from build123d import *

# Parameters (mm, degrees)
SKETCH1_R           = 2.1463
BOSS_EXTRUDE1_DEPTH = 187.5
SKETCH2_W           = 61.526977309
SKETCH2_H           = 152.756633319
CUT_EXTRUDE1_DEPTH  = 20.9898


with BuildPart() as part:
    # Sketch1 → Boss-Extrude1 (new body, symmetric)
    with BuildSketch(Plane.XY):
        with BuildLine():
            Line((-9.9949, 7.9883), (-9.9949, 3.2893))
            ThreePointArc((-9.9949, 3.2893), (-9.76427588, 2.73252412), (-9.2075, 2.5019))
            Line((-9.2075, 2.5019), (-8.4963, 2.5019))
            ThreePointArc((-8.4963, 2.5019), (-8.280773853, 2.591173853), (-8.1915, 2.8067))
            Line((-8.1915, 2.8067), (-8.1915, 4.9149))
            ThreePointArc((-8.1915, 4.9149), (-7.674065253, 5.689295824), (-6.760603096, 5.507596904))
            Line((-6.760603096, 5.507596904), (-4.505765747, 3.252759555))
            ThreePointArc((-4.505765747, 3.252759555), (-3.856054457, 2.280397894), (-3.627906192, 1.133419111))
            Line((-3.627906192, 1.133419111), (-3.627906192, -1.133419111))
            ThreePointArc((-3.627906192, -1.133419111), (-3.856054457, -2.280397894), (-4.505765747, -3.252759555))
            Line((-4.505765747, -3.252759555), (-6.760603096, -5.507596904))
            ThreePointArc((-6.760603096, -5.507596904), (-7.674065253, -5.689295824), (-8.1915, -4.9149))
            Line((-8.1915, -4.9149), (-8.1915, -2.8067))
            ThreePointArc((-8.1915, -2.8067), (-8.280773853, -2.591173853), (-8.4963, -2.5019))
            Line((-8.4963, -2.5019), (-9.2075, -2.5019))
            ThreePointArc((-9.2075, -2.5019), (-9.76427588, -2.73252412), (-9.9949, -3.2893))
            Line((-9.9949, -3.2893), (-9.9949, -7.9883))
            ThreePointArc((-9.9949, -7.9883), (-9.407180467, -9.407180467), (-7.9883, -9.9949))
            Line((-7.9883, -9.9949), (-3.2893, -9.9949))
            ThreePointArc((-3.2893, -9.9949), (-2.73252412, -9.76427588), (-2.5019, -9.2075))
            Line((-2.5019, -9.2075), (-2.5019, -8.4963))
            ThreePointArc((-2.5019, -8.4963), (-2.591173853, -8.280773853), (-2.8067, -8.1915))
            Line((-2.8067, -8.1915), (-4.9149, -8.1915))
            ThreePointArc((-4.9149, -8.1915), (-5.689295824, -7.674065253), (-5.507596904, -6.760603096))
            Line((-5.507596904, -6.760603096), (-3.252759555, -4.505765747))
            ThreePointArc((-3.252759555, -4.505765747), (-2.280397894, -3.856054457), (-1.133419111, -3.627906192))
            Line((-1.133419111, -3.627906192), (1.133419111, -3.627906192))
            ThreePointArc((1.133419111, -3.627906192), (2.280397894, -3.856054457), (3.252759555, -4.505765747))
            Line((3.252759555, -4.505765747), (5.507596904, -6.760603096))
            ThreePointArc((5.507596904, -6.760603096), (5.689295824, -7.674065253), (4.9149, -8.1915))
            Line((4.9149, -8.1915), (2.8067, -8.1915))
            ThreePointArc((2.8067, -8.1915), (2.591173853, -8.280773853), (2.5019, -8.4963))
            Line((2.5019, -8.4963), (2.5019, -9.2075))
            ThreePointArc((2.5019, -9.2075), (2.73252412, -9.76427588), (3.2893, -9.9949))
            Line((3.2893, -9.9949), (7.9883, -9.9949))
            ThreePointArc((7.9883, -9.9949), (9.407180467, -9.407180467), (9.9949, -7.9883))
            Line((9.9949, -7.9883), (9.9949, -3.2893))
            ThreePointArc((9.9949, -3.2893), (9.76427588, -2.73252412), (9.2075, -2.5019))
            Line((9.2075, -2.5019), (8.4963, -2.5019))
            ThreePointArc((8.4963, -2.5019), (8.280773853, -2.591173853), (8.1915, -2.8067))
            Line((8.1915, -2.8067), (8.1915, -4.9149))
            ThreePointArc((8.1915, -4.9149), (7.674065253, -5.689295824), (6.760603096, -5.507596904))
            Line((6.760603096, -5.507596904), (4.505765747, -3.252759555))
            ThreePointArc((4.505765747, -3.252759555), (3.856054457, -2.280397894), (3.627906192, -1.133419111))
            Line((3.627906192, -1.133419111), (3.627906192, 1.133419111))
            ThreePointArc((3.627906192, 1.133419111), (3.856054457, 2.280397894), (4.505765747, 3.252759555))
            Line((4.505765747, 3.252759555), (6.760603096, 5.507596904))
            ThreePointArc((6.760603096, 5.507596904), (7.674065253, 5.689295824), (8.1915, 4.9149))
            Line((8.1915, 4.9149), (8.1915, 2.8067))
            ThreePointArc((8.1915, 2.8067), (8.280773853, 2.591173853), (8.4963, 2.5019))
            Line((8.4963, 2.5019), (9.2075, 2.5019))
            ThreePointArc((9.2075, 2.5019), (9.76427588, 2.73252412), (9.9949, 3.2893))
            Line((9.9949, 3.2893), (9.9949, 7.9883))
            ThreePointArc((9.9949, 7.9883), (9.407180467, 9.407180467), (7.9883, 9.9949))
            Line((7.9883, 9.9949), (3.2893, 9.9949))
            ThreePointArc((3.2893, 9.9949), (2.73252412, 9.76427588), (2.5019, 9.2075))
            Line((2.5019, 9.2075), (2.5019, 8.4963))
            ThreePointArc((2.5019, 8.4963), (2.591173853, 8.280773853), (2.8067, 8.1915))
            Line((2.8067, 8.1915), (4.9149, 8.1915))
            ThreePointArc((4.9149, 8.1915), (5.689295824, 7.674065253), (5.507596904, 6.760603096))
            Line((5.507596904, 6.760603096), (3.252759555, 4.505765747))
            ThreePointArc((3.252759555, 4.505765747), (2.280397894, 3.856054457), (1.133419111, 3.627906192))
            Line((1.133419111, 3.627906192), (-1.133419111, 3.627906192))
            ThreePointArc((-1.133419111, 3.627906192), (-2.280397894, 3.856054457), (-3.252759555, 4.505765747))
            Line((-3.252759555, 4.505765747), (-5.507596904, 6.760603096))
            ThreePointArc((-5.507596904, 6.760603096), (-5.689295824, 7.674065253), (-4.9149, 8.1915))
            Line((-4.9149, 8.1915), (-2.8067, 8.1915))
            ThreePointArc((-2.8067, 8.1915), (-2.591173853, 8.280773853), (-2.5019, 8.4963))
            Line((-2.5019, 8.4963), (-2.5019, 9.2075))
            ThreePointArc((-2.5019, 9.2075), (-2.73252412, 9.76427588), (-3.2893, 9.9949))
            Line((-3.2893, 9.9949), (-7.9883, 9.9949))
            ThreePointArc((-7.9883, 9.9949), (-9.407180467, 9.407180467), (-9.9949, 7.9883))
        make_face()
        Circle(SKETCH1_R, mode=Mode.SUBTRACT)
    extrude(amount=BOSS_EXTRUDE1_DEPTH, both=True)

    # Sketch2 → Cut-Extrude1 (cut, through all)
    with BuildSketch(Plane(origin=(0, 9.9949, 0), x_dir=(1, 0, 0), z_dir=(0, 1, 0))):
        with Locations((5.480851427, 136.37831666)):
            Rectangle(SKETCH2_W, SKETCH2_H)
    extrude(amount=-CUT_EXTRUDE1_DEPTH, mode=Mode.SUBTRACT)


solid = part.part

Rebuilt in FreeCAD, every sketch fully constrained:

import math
import FreeCAD as App
import Part
import Sketcher
Q = App.Units.Quantity


def add_polygon(sketch, points):
    """Adds a closed chain of lines whose ends are joined by coincident constraints."""
    first, n = sketch.GeometryCount, len(points)
    for a, b in zip(points, points[1:] + points[:1]):
        sketch.addGeometry(Part.LineSegment(App.Vector(*a, 0), App.Vector(*b, 0)), False)
    for i in range(n):
        sketch.addConstraint(Sketcher.Constraint("Coincident", first + i, 2, first + (i + 1) % n, 1))

doc = App.newDocument("Part")
body = doc.addObject("PartDesign::Body", "Body")

# Sketch on XY plane
sketch1 = body.newObject("Sketcher::SketchObject", "Sketch")
sketch1.AttachmentSupport = (doc.getObject("XY_Plane"), [""])
sketch1.MapMode = "FlatFace"
sketch1.addGeometry([
    Part.LineSegment(App.Vector(-9.99, 7.99, 0), App.Vector(-9.99, 3.29, 0)),  # 0
    Part.ArcOfCircle(Part.Circle(App.Vector(-9.21, 3.29, 0), App.Vector(0, 0, 1), 0.79), math.radians(180), math.radians(270)),  # 1
    Part.LineSegment(App.Vector(-9.21, 2.5, 0), App.Vector(-8.5, 2.5, 0)),  # 2
    Part.ArcOfCircle(Part.Circle(App.Vector(-8.5, 2.81, 0), App.Vector(0, 0, 1), 0.3), math.radians(-90), math.radians(0)),  # 3
    Part.LineSegment(App.Vector(-8.19, 2.81, 0), App.Vector(-8.19, 4.91, 0)),  # 4
    Part.ArcOfCircle(Part.Circle(App.Vector(-7.35, 4.91, 0), App.Vector(0, 0, 1), 0.84), math.radians(45), math.radians(180)),  # 5
    Part.LineSegment(App.Vector(-6.76, 5.51, 0), App.Vector(-4.51, 3.25, 0)),  # 6
    Part.ArcOfCircle(Part.Circle(App.Vector(-6.63, 1.13, 0), App.Vector(0, 0, 1), 3), math.radians(0), math.radians(45)),  # 7
    Part.LineSegment(App.Vector(-3.63, 1.13, 0), App.Vector(-3.63, -1.13, 0)),  # 8
    Part.ArcOfCircle(Part.Circle(App.Vector(-6.63, -1.13, 0), App.Vector(0, 0, 1), 3), math.radians(-45), math.radians(0)),  # 9
    Part.LineSegment(App.Vector(-4.51, -3.25, 0), App.Vector(-6.76, -5.51, 0)),  # 10
    Part.ArcOfCircle(Part.Circle(App.Vector(-7.35, -4.91, 0), App.Vector(0, 0, 1), 0.84), math.radians(180), math.radians(315)),  # 11
    Part.LineSegment(App.Vector(-8.19, -4.91, 0), App.Vector(-8.19, -2.81, 0)),  # 12
    Part.ArcOfCircle(Part.Circle(App.Vector(-8.5, -2.81, 0), App.Vector(0, 0, 1), 0.3), math.radians(0), math.radians(90)),  # 13
    Part.LineSegment(App.Vector(-8.5, -2.5, 0), App.Vector(-9.21, -2.5, 0)),  # 14
    Part.ArcOfCircle(Part.Circle(App.Vector(-9.21, -3.29, 0), App.Vector(0, 0, 1), 0.79), math.radians(90), math.radians(180)),  # 15
    Part.LineSegment(App.Vector(-9.99, -3.29, 0), App.Vector(-9.99, -7.99, 0)),  # 16
    Part.ArcOfCircle(Part.Circle(App.Vector(-7.99, -7.99, 0), App.Vector(0, 0, 1), 2.01), math.radians(180), math.radians(270)),  # 17
    Part.LineSegment(App.Vector(-7.99, -9.99, 0), App.Vector(-3.29, -9.99, 0)),  # 18
    Part.ArcOfCircle(Part.Circle(App.Vector(-3.29, -9.21, 0), App.Vector(0, 0, 1), 0.79), math.radians(-90), math.radians(0)),  # 19
    Part.LineSegment(App.Vector(-2.5, -9.21, 0), App.Vector(-2.5, -8.5, 0)),  # 20
    Part.ArcOfCircle(Part.Circle(App.Vector(-2.81, -8.5, 0), App.Vector(0, 0, 1), 0.3), math.radians(0), math.radians(90)),  # 21
    Part.LineSegment(App.Vector(-2.81, -8.19, 0), App.Vector(-4.91, -8.19, 0)),  # 22
    Part.ArcOfCircle(Part.Circle(App.Vector(-4.91, -7.35, 0), App.Vector(0, 0, 1), 0.84), math.radians(135), math.radians(270)),  # 23
    Part.LineSegment(App.Vector(-5.51, -6.76, 0), App.Vector(-3.25, -4.51, 0)),  # 24
    Part.ArcOfCircle(Part.Circle(App.Vector(-1.13, -6.63, 0), App.Vector(0, 0, 1), 3), math.radians(90), math.radians(135)),  # 25
    Part.LineSegment(App.Vector(-1.13, -3.63, 0), App.Vector(1.13, -3.63, 0)),  # 26
    Part.ArcOfCircle(Part.Circle(App.Vector(1.13, -6.63, 0), App.Vector(0, 0, 1), 3), math.radians(45), math.radians(90)),  # 27
    Part.LineSegment(App.Vector(3.25, -4.51, 0), App.Vector(5.51, -6.76, 0)),  # 28
    Part.ArcOfCircle(Part.Circle(App.Vector(4.91, -7.35, 0), App.Vector(0, 0, 1), 0.84), math.radians(-90), math.radians(45)),  # 29
    Part.LineSegment(App.Vector(4.91, -8.19, 0), App.Vector(2.81, -8.19, 0)),  # 30
    Part.ArcOfCircle(Part.Circle(App.Vector(2.81, -8.5, 0), App.Vector(0, 0, 1), 0.3), math.radians(90), math.radians(180)),  # 31
    Part.LineSegment(App.Vector(2.5, -8.5, 0), App.Vector(2.5, -9.21, 0)),  # 32
    Part.ArcOfCircle(Part.Circle(App.Vector(3.29, -9.21, 0), App.Vector(0, 0, 1), 0.79), math.radians(180), math.radians(270)),  # 33
    Part.LineSegment(App.Vector(3.29, -9.99, 0), App.Vector(7.99, -9.99, 0)),  # 34
    Part.ArcOfCircle(Part.Circle(App.Vector(7.99, -7.99, 0), App.Vector(0, 0, 1), 2.01), math.radians(-90), math.radians(0)),  # 35
    Part.LineSegment(App.Vector(9.99, -7.99, 0), App.Vector(9.99, -3.29, 0)),  # 36
    Part.ArcOfCircle(Part.Circle(App.Vector(9.21, -3.29, 0), App.Vector(0, 0, 1), 0.79), math.radians(0), math.radians(90)),  # 37
    Part.LineSegment(App.Vector(9.21, -2.5, 0), App.Vector(8.5, -2.5, 0)),  # 38
    Part.ArcOfCircle(Part.Circle(App.Vector(8.5, -2.81, 0), App.Vector(0, 0, 1), 0.3), math.radians(90), math.radians(180)),  # 39
    Part.LineSegment(App.Vector(8.19, -2.81, 0), App.Vector(8.19, -4.91, 0)),  # 40
    Part.ArcOfCircle(Part.Circle(App.Vector(7.35, -4.91, 0), App.Vector(0, 0, 1), 0.84), math.radians(-135), math.radians(0)),  # 41
    Part.LineSegment(App.Vector(6.76, -5.51, 0), App.Vector(4.51, -3.25, 0)),  # 42
    Part.ArcOfCircle(Part.Circle(App.Vector(6.63, -1.13, 0), App.Vector(0, 0, 1), 3), math.radians(180), math.radians(225)),  # 43
    Part.LineSegment(App.Vector(3.63, -1.13, 0), App.Vector(3.63, 1.13, 0)),  # 44
    Part.ArcOfCircle(Part.Circle(App.Vector(6.63, 1.13, 0), App.Vector(0, 0, 1), 3), math.radians(135), math.radians(180)),  # 45
    Part.LineSegment(App.Vector(4.51, 3.25, 0), App.Vector(6.76, 5.51, 0)),  # 46
    Part.ArcOfCircle(Part.Circle(App.Vector(7.35, 4.91, 0), App.Vector(0, 0, 1), 0.84), math.radians(0), math.radians(135)),  # 47
    Part.LineSegment(App.Vector(8.19, 4.91, 0), App.Vector(8.19, 2.81, 0)),  # 48
    Part.ArcOfCircle(Part.Circle(App.Vector(8.5, 2.81, 0), App.Vector(0, 0, 1), 0.3), math.radians(180), math.radians(270)),  # 49
    Part.LineSegment(App.Vector(8.5, 2.5, 0), App.Vector(9.21, 2.5, 0)),  # 50
    Part.ArcOfCircle(Part.Circle(App.Vector(9.21, 3.29, 0), App.Vector(0, 0, 1), 0.79), math.radians(-90), math.radians(0)),  # 51
    Part.LineSegment(App.Vector(9.99, 3.29, 0), App.Vector(9.99, 7.99, 0)),  # 52
    Part.ArcOfCircle(Part.Circle(App.Vector(7.99, 7.99, 0), App.Vector(0, 0, 1), 2.01), math.radians(0), math.radians(90)),  # 53
    Part.LineSegment(App.Vector(7.99, 9.99, 0), App.Vector(3.29, 9.99, 0)),  # 54
    Part.ArcOfCircle(Part.Circle(App.Vector(3.29, 9.21, 0), App.Vector(0, 0, 1), 0.79), math.radians(90), math.radians(180)),  # 55
    Part.LineSegment(App.Vector(2.5, 9.21, 0), App.Vector(2.5, 8.5, 0)),  # 56
    Part.ArcOfCircle(Part.Circle(App.Vector(2.81, 8.5, 0), App.Vector(0, 0, 1), 0.3), math.radians(180), math.radians(270)),  # 57
    Part.LineSegment(App.Vector(2.81, 8.19, 0), App.Vector(4.91, 8.19, 0)),  # 58
    Part.ArcOfCircle(Part.Circle(App.Vector(4.91, 7.35, 0), App.Vector(0, 0, 1), 0.84), math.radians(-45), math.radians(90)),  # 59
    Part.LineSegment(App.Vector(5.51, 6.76, 0), App.Vector(3.25, 4.51, 0)),  # 60
    Part.ArcOfCircle(Part.Circle(App.Vector(1.13, 6.63, 0), App.Vector(0, 0, 1), 3), math.radians(-90), math.radians(-45)),  # 61
    Part.LineSegment(App.Vector(1.13, 3.63, 0), App.Vector(-1.13, 3.63, 0)),  # 62
    Part.ArcOfCircle(Part.Circle(App.Vector(-1.13, 6.63, 0), App.Vector(0, 0, 1), 3), math.radians(-135), math.radians(-90)),  # 63
    Part.LineSegment(App.Vector(-3.25, 4.51, 0), App.Vector(-5.51, 6.76, 0)),  # 64
    Part.ArcOfCircle(Part.Circle(App.Vector(-4.91, 7.35, 0), App.Vector(0, 0, 1), 0.84), math.radians(90), math.radians(225)),  # 65
    Part.LineSegment(App.Vector(-4.91, 8.19, 0), App.Vector(-2.81, 8.19, 0)),  # 66
    Part.ArcOfCircle(Part.Circle(App.Vector(-2.81, 8.5, 0), App.Vector(0, 0, 1), 0.3), math.radians(-90), math.radians(0)),  # 67
    Part.LineSegment(App.Vector(-2.5, 8.5, 0), App.Vector(-2.5, 9.21, 0)),  # 68
    Part.ArcOfCircle(Part.Circle(App.Vector(-3.29, 9.21, 0), App.Vector(0, 0, 1), 0.79), math.radians(0), math.radians(90)),  # 69
    Part.LineSegment(App.Vector(-3.29, 9.99, 0), App.Vector(-7.99, 9.99, 0)),  # 70
    Part.ArcOfCircle(Part.Circle(App.Vector(-7.99, 7.99, 0), App.Vector(0, 0, 1), 2.01), math.radians(90), math.radians(180)),  # 71
    Part.Circle(App.Vector(0, 0, 0), App.Vector(0, 0, 1), 2.15),  # 72
], False)
sketch1.addConstraint([
    Sketcher.Constraint("Tangent", 0, 2, 1, 1),
    Sketcher.Constraint("Tangent", 1, 2, 2, 1),
    Sketcher.Constraint("Tangent", 2, 2, 3, 1),
    Sketcher.Constraint("Tangent", 3, 2, 4, 1),
    Sketcher.Constraint("Tangent", 4, 2, 5, 2),
    Sketcher.Constraint("Tangent", 5, 1, 6, 1),
    Sketcher.Constraint("Tangent", 6, 2, 7, 2),
    Sketcher.Constraint("Tangent", 7, 1, 8, 1),
    Sketcher.Constraint("Tangent", 8, 2, 9, 2),
    Sketcher.Constraint("Tangent", 9, 1, 10, 1),
    Sketcher.Constraint("Tangent", 10, 2, 11, 2),
    Sketcher.Constraint("Tangent", 11, 1, 12, 1),
    Sketcher.Constraint("Tangent", 12, 2, 13, 1),
    Sketcher.Constraint("Tangent", 13, 2, 14, 1),
    Sketcher.Constraint("Tangent", 14, 2, 15, 1),
    Sketcher.Constraint("Tangent", 15, 2, 16, 1),
    Sketcher.Constraint("Tangent", 16, 2, 17, 1),
    Sketcher.Constraint("Tangent", 17, 2, 18, 1),
    Sketcher.Constraint("Tangent", 18, 2, 19, 1),
    Sketcher.Constraint("Tangent", 19, 2, 20, 1),
    Sketcher.Constraint("Tangent", 20, 2, 21, 1),
    Sketcher.Constraint("Tangent", 21, 2, 22, 1),
    Sketcher.Constraint("Tangent", 22, 2, 23, 2),
    Sketcher.Constraint("Tangent", 23, 1, 24, 1),
    Sketcher.Constraint("Tangent", 24, 2, 25, 2),
    Sketcher.Constraint("Tangent", 25, 1, 26, 1),
    Sketcher.Constraint("Tangent", 26, 2, 27, 2),
    Sketcher.Constraint("Tangent", 27, 1, 28, 1),
    Sketcher.Constraint("Tangent", 28, 2, 29, 2),
    Sketcher.Constraint("Tangent", 29, 1, 30, 1),
    Sketcher.Constraint("Tangent", 30, 2, 31, 1),
    Sketcher.Constraint("Tangent", 31, 2, 32, 1),
    Sketcher.Constraint("Tangent", 32, 2, 33, 1),
    Sketcher.Constraint("Tangent", 33, 2, 34, 1),
    Sketcher.Constraint("Tangent", 34, 2, 35, 1),
    Sketcher.Constraint("Tangent", 35, 2, 36, 1),
    Sketcher.Constraint("Tangent", 36, 2, 37, 1),
    Sketcher.Constraint("Tangent", 37, 2, 38, 1),
    Sketcher.Constraint("Tangent", 38, 2, 39, 1),
    Sketcher.Constraint("Tangent", 39, 2, 40, 1),
    Sketcher.Constraint("Tangent", 40, 2, 41, 2),
    Sketcher.Constraint("Tangent", 41, 1, 42, 1),
    Sketcher.Constraint("Tangent", 42, 2, 43, 2),
    Sketcher.Constraint("Tangent", 43, 1, 44, 1),
    Sketcher.Constraint("Tangent", 44, 2, 45, 2),
    Sketcher.Constraint("Tangent", 45, 1, 46, 1),
    Sketcher.Constraint("Tangent", 46, 2, 47, 2),
    Sketcher.Constraint("Tangent", 47, 1, 48, 1),
    Sketcher.Constraint("Tangent", 48, 2, 49, 1),
    Sketcher.Constraint("Tangent", 49, 2, 50, 1),
    Sketcher.Constraint("Tangent", 50, 2, 51, 1),
    Sketcher.Constraint("Tangent", 51, 2, 52, 1),
    Sketcher.Constraint("Tangent", 52, 2, 53, 1),
    Sketcher.Constraint("Tangent", 53, 2, 54, 1),
    Sketcher.Constraint("Tangent", 54, 2, 55, 1),
    Sketcher.Constraint("Tangent", 55, 2, 56, 1),
    Sketcher.Constraint("Tangent", 56, 2, 57, 1),
    Sketcher.Constraint("Tangent", 57, 2, 58, 1),
    Sketcher.Constraint("Tangent", 58, 2, 59, 2),
    Sketcher.Constraint("Tangent", 59, 1, 60, 1),
    Sketcher.Constraint("Tangent", 60, 2, 61, 2),
    Sketcher.Constraint("Tangent", 61, 1, 62, 1),
    Sketcher.Constraint("Tangent", 62, 2, 63, 2),
    Sketcher.Constraint("Tangent", 63, 1, 64, 1),
    Sketcher.Constraint("Tangent", 64, 2, 65, 2),
    Sketcher.Constraint("Tangent", 65, 1, 66, 1),
    Sketcher.Constraint("Tangent", 66, 2, 67, 1),
    Sketcher.Constraint("Tangent", 67, 2, 68, 1),
    Sketcher.Constraint("Tangent", 68, 2, 69, 1),
    Sketcher.Constraint("Tangent", 69, 2, 70, 1),
    Sketcher.Constraint("Tangent", 70, 2, 71, 1),
    Sketcher.Constraint("Tangent", 71, 2, 0, 1),
    Sketcher.Constraint("Vertical", 0),
    Sketcher.Constraint("Horizontal", 2),
    Sketcher.Constraint("Vertical", 4),
    Sketcher.Constraint("Vertical", 8),
    Sketcher.Constraint("Vertical", 12),
    Sketcher.Constraint("Horizontal", 14),
    Sketcher.Constraint("Vertical", 16),
    Sketcher.Constraint("Horizontal", 18),
    Sketcher.Constraint("Vertical", 20),
    Sketcher.Constraint("Horizontal", 22),
    Sketcher.Constraint("Horizontal", 26),
    Sketcher.Constraint("Horizontal", 30),
    Sketcher.Constraint("Vertical", 32),
    Sketcher.Constraint("Horizontal", 34),
    Sketcher.Constraint("Vertical", 36),
    Sketcher.Constraint("Horizontal", 38),
    Sketcher.Constraint("Vertical", 40),
    Sketcher.Constraint("Vertical", 44),
    Sketcher.Constraint("Vertical", 48),
    Sketcher.Constraint("Horizontal", 50),
    Sketcher.Constraint("Vertical", 52),
    Sketcher.Constraint("Horizontal", 54),
    Sketcher.Constraint("Vertical", 56),
    Sketcher.Constraint("Horizontal", 58),
    Sketcher.Constraint("Horizontal", 62),
    Sketcher.Constraint("Horizontal", 66),
    Sketcher.Constraint("Vertical", 68),
    Sketcher.Constraint("Horizontal", 70),
    Sketcher.Constraint("Coincident", 72, 3, -1, 1),
    Sketcher.Constraint("Equal", 7, 9),
    Sketcher.Constraint("Equal", 5, 11),
    Sketcher.Constraint("Equal", 3, 13),
    Sketcher.Constraint("Equal", 1, 15),
    Sketcher.Constraint("Equal", 15, 19),
    Sketcher.Constraint("Equal", 13, 21),
    Sketcher.Constraint("Equal", 11, 23),
    Sketcher.Constraint("Equal", 9, 25),
    Sketcher.Constraint("Equal", 25, 27),
    Sketcher.Constraint("Equal", 23, 29),
    Sketcher.Constraint("Equal", 21, 31),
    Sketcher.Constraint("Equal", 19, 33),
    Sketcher.Constraint("Equal", 17, 35),
    Sketcher.Constraint("Equal", 33, 37),
    Sketcher.Constraint("Equal", 31, 39),
    Sketcher.Constraint("Equal", 29, 41),
    Sketcher.Constraint("Equal", 27, 43),
    Sketcher.Constraint("Equal", 43, 45),
    Sketcher.Constraint("Equal", 41, 47),
    Sketcher.Constraint("Equal", 39, 49),
    Sketcher.Constraint("Equal", 37, 51),
    Sketcher.Constraint("Equal", 35, 53),
    Sketcher.Constraint("Equal", 51, 55),
    Sketcher.Constraint("Equal", 49, 57),
    Sketcher.Constraint("Equal", 47, 59),
    Sketcher.Constraint("Equal", 45, 61),
    Sketcher.Constraint("Equal", 61, 63),
    Sketcher.Constraint("Equal", 59, 65),
    Sketcher.Constraint("Equal", 57, 67),
    Sketcher.Constraint("Equal", 55, 69),
    Sketcher.Constraint("Equal", 53, 71),
    Sketcher.Constraint("Symmetric", 1, 3, 37, 3, -1, 1),
    Sketcher.Constraint("Symmetric", 5, 3, 41, 3, -1, 1),
    Sketcher.Constraint("Symmetric", 7, 3, 43, 3, -1, 1),
    Sketcher.Constraint("Symmetric", 11, 3, 47, 3, -1, 1),
    Sketcher.Constraint("Symmetric", 15, 3, 51, 3, -1, 1),
    Sketcher.Constraint("Symmetric", 19, 3, 55, 3, -1, 1),
    Sketcher.Constraint("Symmetric", 23, 3, 59, 3, -1, 1),
    Sketcher.Constraint("Symmetric", 25, 3, 61, 3, -1, 1),
    Sketcher.Constraint("Symmetric", 29, 3, 65, 3, -1, 1),
    Sketcher.Constraint("Symmetric", 33, 3, 69, 3, -1, 1),
    Sketcher.Constraint("Symmetric", 23, 3, 29, 3, -2),
    Sketcher.Constraint("Symmetric", 19, 3, 33, 3, -2),
    Sketcher.Constraint("Symmetric", 15, 3, 37, 3, -2),
    Sketcher.Constraint("Symmetric", 11, 3, 41, 3, -2),
    Sketcher.Constraint("Perpendicular", 6, 10),
    Sketcher.Constraint("Parallel", 10, 24),
    Sketcher.Constraint("Perpendicular", 24, 28),
    Sketcher.Constraint("Perpendicular", 42, 46),
    Sketcher.Constraint("Perpendicular", 60, 64),
    Sketcher.Constraint("Horizontal", 9, 3, 43, 3),
    Sketcher.Constraint("Equal", 70, 0),
    Sketcher.Constraint("Equal", 66, 4),
    Sketcher.Constraint("Equal", 62, 8),
    Sketcher.Constraint("Equal", 50, 20),
    Sketcher.Constraint("Equal", 10, 24),
    Sketcher.Constraint("Diameter", 72, Q("0.169 in")),
    Sketcher.Constraint("Radius", 1, Q("0.031 in")),
    Sketcher.Constraint("Radius", 3, Q("0.012 in")),
    Sketcher.Constraint("Radius", 5, Q("0.033 in")),
    Sketcher.Constraint("Radius", 7, Q("0.118 in")),
    Sketcher.Constraint("Radius", 17, Q("0.079 in")),
    Sketcher.Constraint("DistanceX", 2, 1, 2, 2, Q("0.028 in")),
    Sketcher.Constraint("DistanceX", 18, 1, 18, 2, Q("0.185 in")),
    Sketcher.Constraint("DistanceX", 22, 2, 22, 1, Q("0.083 in")),
    Sketcher.Constraint("DistanceX", 1, 3, -1, 1, Q("0.3625 in")),
    Sketcher.Constraint("DistanceX", 26, 1, 26, 2, Q("2.266838 mm")),
])
pad1 = body.newObject("PartDesign::Pad", "Pad")
pad1.Profile = sketch1
pad1.Length = 375
pad1.Midplane = True

# Sketch on XZ plane
sketch2 = body.newObject("Sketcher::SketchObject", "Sketch001")
sketch2.AttachmentSupport = (doc.getObject("XZ_Plane"), [""])
sketch2.MapMode = "FlatFace"
sketch2.AttachmentOffset = App.Placement(App.Vector(0, 0, -0.3935 * 25.4), App.Rotation())
add_polygon(sketch2, [(-25, -213), (-25, -60), (36, -60), (36, -213)])  # lines 0-3
sketch2.addConstraint([
    Sketcher.Constraint("Vertical", 0),
    Sketcher.Constraint("Horizontal", 1),
    Sketcher.Constraint("Vertical", 2),
    Sketcher.Constraint("Horizontal", 3),
    Sketcher.Constraint("DistanceY", 0, 2, -1, 1, Q("60 mm")),
    Sketcher.Constraint("DistanceX", 1, 1, 1, 2, Q("61.526977 mm")),
    Sketcher.Constraint("DistanceY", 0, 1, 0, 2, Q("152.756633 mm")),
    Sketcher.Constraint("DistanceX", -1, 1, 1, 2, Q("36.24434 mm")),
])
pocket1 = body.newObject("PartDesign::Pocket", "Pocket")
pocket1.Profile = sketch2
pocket1.Type = "ThroughAll"
pocket1.Reversed = True

doc.recompute()
